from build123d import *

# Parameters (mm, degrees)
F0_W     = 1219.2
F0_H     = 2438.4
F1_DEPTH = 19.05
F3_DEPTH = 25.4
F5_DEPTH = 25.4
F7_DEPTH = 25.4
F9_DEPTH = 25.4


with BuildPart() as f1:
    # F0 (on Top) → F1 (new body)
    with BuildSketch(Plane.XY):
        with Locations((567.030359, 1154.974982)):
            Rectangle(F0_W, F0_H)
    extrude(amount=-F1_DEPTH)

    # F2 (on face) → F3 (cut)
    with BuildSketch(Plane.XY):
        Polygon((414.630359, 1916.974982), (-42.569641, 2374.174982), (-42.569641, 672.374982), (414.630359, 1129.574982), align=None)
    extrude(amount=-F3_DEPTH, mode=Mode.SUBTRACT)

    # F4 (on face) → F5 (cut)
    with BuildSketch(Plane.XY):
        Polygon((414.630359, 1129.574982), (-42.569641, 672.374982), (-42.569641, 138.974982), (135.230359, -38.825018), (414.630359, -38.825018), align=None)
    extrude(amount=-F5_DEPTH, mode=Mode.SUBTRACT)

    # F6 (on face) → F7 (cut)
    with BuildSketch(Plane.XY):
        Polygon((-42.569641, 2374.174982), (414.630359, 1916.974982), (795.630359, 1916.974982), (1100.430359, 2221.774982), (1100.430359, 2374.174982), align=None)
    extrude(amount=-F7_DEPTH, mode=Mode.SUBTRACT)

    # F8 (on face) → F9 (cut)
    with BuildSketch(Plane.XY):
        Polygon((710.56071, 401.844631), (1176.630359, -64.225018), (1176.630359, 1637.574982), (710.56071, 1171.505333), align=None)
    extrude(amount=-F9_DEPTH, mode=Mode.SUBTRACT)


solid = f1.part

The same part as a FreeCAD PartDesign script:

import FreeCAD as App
import Part
import Sketcher
Q = App.Units.Quantity


def add_polygon(sketch, points):
    """Adds a closed chain of lines whose ends are joined by coincident constraints."""
    first, n = sketch.GeometryCount, len(points)
    for a, b in zip(points, points[1:] + points[:1]):
        sketch.addGeometry(Part.LineSegment(App.Vector(*a, 0), App.Vector(*b, 0)), False)
    for i in range(n):
        sketch.addConstraint(Sketcher.Constraint("Coincident", first + i, 2, first + (i + 1) % n, 1))

doc = App.newDocument("Part")
params = doc.addObject("Spreadsheet::Sheet", "Params")
for row, (alias, value) in enumerate([
    ("sketch1_width", "48 in"),
    ("sketch1_height", "96 in"),
    ("pad1_length", "0.75 in"),
    ("sketch2_height", "67 in"),
    ("sketch2_height2", "31 in"),
    ("pocket1_length", "1 in"),
    ("sketch3_width", "11 in"),
    ("sketch3_height", "21 in"),
    ("sketch3_height2", "46 in"),
    ("pocket2_length", "1 in"),
    ("sketch4_width", "15 in"),
    ("sketch4_width2", "45 in"),
    ("sketch4_height", "6 in"),
    ("pocket3_length", "1 in"),
    ("sketch5_height", "67 in"),
    ("pocket4_length", "1 in"),
], start=1):
    params.set(f"A{row}", alias)
    params.set(f"B{row}", "=" + value)
    params.setAlias(f"B{row}", alias)

body = doc.addObject("PartDesign::Body", "Body")

# Sketch on XY plane
sketch1 = body.newObject("Sketcher::SketchObject", "Sketch")
sketch1.AttachmentSupport = (doc.getObject("XY_Plane"), [""])
sketch1.MapMode = "FlatFace"
add_polygon(sketch1, [(-43, 2374), (-43, -64), (1177, -64), (1177, 2374)])  # lines 0-3
sketch1.addConstraint([
    Sketcher.Constraint("Vertical", 0),
    Sketcher.Constraint("Horizontal", 1),
    Sketcher.Constraint("Vertical", 2),
    Sketcher.Constraint("Horizontal", 3),
    Sketcher.Constraint("DistanceX", 1, 1, 1, 2, Q("48 in")),
    Sketcher.Constraint("DistanceY", 0, 2, 0, 1, Q("96 in")),
    Sketcher.Constraint("DistanceX", 0, 2, -1, 1, Q("42.569641 mm")),
    Sketcher.Constraint("DistanceY", 0, 2, -1, 1, Q("64.225018 mm")),
])
sketch1.setExpression("Constraints[8]", "Params.sketch1_width")
sketch1.setExpression("Constraints[9]", "Params.sketch1_height")
pad1 = body.newObject("PartDesign::Pad", "Pad")
pad1.Profile = sketch1
pad1.setExpression("Length", "Params.pad1_length")
pad1.Reversed = True

# Sketch on XY plane
sketch2 = body.newObject("Sketcher::SketchObject", "Sketch001")
sketch2.AttachmentSupport = (doc.getObject("XY_Plane"), [""])
sketch2.MapMode = "FlatFace"
add_polygon(sketch2, [(415, 1917), (-43, 2374), (-43, 672), (415, 1130)])  # lines 0-3
sketch2.addConstraint([
    Sketcher.Constraint("Vertical", 1),
    Sketcher.Constraint("Vertical", 3),
    Sketcher.Constraint("Perpendicular", 0, 2),
    Sketcher.Constraint("Equal", 0, 2),
    Sketcher.Constraint("DistanceY", 1, 2, 1, 1, Q("67 in")),
    Sketcher.Constraint("DistanceY", 3, 1, 3, 2, Q("31 in")),
    Sketcher.Constraint("DistanceX", 0, 2, -1, 1, Q("42.569641 mm")),
    Sketcher.Constraint("DistanceY", -1, 1, 1, 2, Q("672.374982 mm")),
])
sketch2.setExpression("Constraints[8]", "Params.sketch2_height")
sketch2.setExpression("Constraints[9]", "Params.sketch2_height2")
pocket1 = body.newObject("PartDesign::Pocket", "Pocket")
pocket1.Profile = sketch2
pocket1.setExpression("Length", "Params.pocket1_length")

# Sketch on XY plane
sketch3 = body.newObject("Sketcher::SketchObject", "Sketch002")
sketch3.AttachmentSupport = (doc.getObject("XY_Plane"), [""])
sketch3.MapMode = "FlatFace"
add_polygon(sketch3, [(415, 1130), (-43, 672), (-43, 139), (135, -39), (415, -39)])  # lines 0-4
sketch3.addConstraint([
    Sketcher.Constraint("Vertical", 1),
    Sketcher.Constraint("Horizontal", 3),
    Sketcher.Constraint("Vertical", 4),
    Sketcher.Constraint("Perpendicular", 0, 2),
    Sketcher.Constraint("DistanceX", 3, 1, 3, 2, Q("11 in")),
    Sketcher.Constraint("DistanceY", 1, 2, 1, 1, Q("21 in")),
    Sketcher.Constraint("DistanceY", 4, 1, 4, 2, Q("46 in")),
    Sketcher.Constraint("Angle", 0, Q("-135 deg")),
    Sketcher.Constraint("DistanceX", 0, 2, -1, 1, Q("42.569641 mm")),
    Sketcher.Constraint("DistanceY", -1, 1, 0, 2, Q("672.374982 mm")),
])
sketch3.setExpression("Constraints[9]", "Params.sketch3_width")
sketch3.setExpression("Constraints[10]", "Params.sketch3_height")
sketch3.setExpression("Constraints[11]", "Params.sketch3_height2")
pocket2 = body.newObject("PartDesign::Pocket", "Pocket001")
pocket2.Profile = sketch3
pocket2.setExpression("Length", "Params.pocket2_length")

# Sketch on XY plane
sketch4 = body.newObject("Sketcher::SketchObject", "Sketch003")
sketch4.AttachmentSupport = (doc.getObject("XY_Plane"), [""])
sketch4.MapMode = "FlatFace"
add_polygon(sketch4, [(-43, 2374), (415, 1917), (796, 1917), (1100, 2222), (1100, 2374)])  # lines 0-4
sketch4.addConstraint([
    Sketcher.Constraint("Horizontal", 1),
    Sketcher.Constraint("Vertical", 3),
    Sketcher.Constraint("Horizontal", 4),
    Sketcher.Constraint("Perpendicular", 0, 2),
    Sketcher.Constraint("DistanceX", 1, 1, 1, 2, Q("15 in")),
    Sketcher.Constraint("DistanceX", 4, 2, 4, 1, Q("45 in")),
    Sketcher.Constraint("DistanceY", 3, 1, 3, 2, Q("6 in")),
    Sketcher.Constraint("Angle", 0, Q("-45 deg")),
    Sketcher.Constraint("DistanceX", -1, 1, 0, 2, Q("414.630359 mm")),
    Sketcher.Constraint("DistanceY", -1, 1, 0, 2, Q("1916.974982 mm")),
])
sketch4.setExpression("Constraints[9]", "Params.sketch4_width")
sketch4.setExpression("Constraints[10]", "Params.sketch4_width2")
sketch4.setExpression("Constraints[11]", "Params.sketch4_height")
pocket3 = body.newObject("PartDesign::Pocket", "Pocket002")
pocket3.Profile = sketch4
pocket3.setExpression("Length", "Params.pocket3_length")

# Sketch on XY plane
sketch5 = body.newObject("Sketcher::SketchObject", "Sketch004")
sketch5.AttachmentSupport = (doc.getObject("XY_Plane"), [""])
sketch5.MapMode = "FlatFace"
add_polygon(sketch5, [(711, 402), (1177, -64), (1177, 1638), (711, 1172)])  # lines 0-3
sketch5.addConstraint([
    Sketcher.Constraint("Vertical", 1),
    Sketcher.Constraint("Vertical", 3),
    Sketcher.Constraint("Perpendicular", 0, 2),
    Sketcher.Constraint("Equal", 0, 2),
    Sketcher.Constraint("DistanceY", 1, 1, 1, 2, Q("67 in")),
    Sketcher.Constraint("Distance", 0, Q("659.122019 mm")),
    Sketcher.Constraint("DistanceX", -1, 1, 0, 2, Q("1176.630359 mm")),
    Sketcher.Constraint("DistanceY", 0, 2, -1, 1, Q("64.225018 mm")),
])
sketch5.setExpression("Constraints[8]", "Params.sketch5_height")
pocket4 = body.newObject("PartDesign::Pocket", "Pocket003")
pocket4.Profile = sketch5
pocket4.setExpression("Length", "Params.pocket4_length")

doc.recompute()
